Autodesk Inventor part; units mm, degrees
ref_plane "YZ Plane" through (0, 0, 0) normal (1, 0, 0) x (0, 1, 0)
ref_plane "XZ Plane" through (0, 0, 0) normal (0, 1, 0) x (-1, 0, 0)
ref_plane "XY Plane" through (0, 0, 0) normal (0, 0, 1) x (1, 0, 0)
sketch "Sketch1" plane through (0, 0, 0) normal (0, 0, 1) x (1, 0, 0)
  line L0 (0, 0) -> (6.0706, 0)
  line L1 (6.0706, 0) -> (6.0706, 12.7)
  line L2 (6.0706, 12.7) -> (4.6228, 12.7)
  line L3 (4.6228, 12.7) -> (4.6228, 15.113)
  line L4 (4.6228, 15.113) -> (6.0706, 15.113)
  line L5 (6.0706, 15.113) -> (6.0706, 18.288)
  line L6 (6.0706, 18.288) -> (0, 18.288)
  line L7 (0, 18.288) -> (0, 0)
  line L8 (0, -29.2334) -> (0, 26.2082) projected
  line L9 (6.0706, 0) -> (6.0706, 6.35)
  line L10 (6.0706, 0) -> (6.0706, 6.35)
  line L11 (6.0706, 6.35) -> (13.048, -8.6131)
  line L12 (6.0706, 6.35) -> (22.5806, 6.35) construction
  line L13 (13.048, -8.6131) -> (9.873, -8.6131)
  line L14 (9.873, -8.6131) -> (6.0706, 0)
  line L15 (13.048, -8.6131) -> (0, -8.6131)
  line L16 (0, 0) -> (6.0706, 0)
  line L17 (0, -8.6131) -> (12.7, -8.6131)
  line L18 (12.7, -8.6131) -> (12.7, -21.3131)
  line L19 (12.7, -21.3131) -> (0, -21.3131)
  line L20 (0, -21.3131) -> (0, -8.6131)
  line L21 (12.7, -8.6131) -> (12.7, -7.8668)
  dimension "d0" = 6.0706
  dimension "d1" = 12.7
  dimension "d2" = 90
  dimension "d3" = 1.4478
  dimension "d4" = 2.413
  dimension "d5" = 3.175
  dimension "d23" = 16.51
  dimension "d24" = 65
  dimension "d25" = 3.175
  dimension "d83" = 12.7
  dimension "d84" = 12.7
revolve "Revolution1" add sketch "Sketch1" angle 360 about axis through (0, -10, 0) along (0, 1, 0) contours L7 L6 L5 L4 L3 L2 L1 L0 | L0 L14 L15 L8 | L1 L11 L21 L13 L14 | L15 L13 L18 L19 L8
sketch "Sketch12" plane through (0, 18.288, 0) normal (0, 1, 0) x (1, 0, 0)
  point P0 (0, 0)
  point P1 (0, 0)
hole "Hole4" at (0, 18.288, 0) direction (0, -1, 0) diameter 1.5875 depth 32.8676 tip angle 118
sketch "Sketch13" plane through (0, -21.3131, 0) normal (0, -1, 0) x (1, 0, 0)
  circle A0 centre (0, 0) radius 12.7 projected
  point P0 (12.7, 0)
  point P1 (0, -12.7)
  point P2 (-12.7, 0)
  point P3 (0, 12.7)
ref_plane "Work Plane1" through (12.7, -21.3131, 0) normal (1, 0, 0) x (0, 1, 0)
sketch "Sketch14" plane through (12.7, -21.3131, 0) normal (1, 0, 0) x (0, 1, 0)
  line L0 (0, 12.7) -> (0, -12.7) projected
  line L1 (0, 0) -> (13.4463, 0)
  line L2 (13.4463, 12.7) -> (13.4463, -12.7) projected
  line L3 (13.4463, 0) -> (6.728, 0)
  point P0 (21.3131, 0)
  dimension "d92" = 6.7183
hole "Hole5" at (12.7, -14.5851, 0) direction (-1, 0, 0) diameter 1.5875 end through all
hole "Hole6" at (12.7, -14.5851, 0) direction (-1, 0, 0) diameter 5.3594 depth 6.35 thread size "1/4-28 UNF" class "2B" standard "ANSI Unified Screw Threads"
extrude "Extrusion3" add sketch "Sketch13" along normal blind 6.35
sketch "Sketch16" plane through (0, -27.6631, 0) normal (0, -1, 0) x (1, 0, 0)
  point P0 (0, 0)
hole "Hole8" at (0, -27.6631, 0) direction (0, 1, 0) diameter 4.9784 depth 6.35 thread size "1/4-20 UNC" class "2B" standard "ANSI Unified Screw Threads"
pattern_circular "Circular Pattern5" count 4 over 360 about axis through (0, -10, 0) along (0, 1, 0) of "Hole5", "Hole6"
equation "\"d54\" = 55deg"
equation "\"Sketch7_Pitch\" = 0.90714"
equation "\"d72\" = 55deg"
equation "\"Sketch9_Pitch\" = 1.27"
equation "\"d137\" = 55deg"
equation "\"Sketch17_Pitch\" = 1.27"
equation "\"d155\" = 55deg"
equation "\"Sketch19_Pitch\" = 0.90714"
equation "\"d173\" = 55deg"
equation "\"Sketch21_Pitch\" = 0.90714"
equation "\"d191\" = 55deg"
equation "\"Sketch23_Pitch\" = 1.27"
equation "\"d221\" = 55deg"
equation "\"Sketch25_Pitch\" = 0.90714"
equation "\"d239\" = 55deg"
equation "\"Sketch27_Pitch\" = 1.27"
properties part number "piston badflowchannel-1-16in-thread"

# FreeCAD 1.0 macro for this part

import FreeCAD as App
import Part
import Sketcher
from FreeCAD import Vector
Q = App.Units.Quantity

doc = App.newDocument("Part")
body = doc.addObject("PartDesign::Body", "Body")

# Sketch on XY plane
sketch1 = body.newObject("Sketcher::SketchObject", "Sketch")
sketch1.AttachmentSupport = (doc.getObject("XY_Plane"), [""])
sketch1.MapMode = "FlatFace"
sketch1.addGeometry([
    Part.LineSegment(Vector(0, 18.3, 0), Vector(0, -21.3, 0)),  # 0
    Part.LineSegment(Vector(0, -21.3, 0), Vector(12.7, -21.3, 0)),  # 1
    Part.LineSegment(Vector(12.7, -21.3, 0), Vector(12.7, -7.9, 0)),  # 2
    Part.LineSegment(Vector(12.7, -7.9, 0), Vector(6.1, 6.3, 0)),  # 3
    Part.LineSegment(Vector(6.1, 6.3, 0), Vector(6.1, 12.7, 0)),  # 4
    Part.LineSegment(Vector(6.1, 12.7, 0), Vector(4.6, 12.7, 0)),  # 5
    Part.LineSegment(Vector(4.6, 12.7, 0), Vector(4.6, 15.1, 0)),  # 6
    Part.LineSegment(Vector(4.6, 15.1, 0), Vector(6.1, 15.1, 0)),  # 7
    Part.LineSegment(Vector(6.1, 15.1, 0), Vector(6.1, 18.3, 0)),  # 8
    Part.LineSegment(Vector(6.1, 18.3, 0), Vector(0, 18.3, 0)),  # 9
], False)
sketch1.addConstraint([
    Sketcher.Constraint("Coincident", 0, 2, 1, 1),
    Sketcher.Constraint("Coincident", 1, 2, 2, 1),
    Sketcher.Constraint("Coincident", 2, 2, 3, 1),
    Sketcher.Constraint("Coincident", 3, 2, 4, 1),
    Sketcher.Constraint("Coincident", 4, 2, 5, 1),
    Sketcher.Constraint("Coincident", 5, 2, 6, 1),
    Sketcher.Constraint("Coincident", 6, 2, 7, 1),
    Sketcher.Constraint("Coincident", 7, 2, 8, 1),
    Sketcher.Constraint("Coincident", 8, 2, 9, 1),
    Sketcher.Constraint("Coincident", 9, 2, 0, 1),
    Sketcher.Constraint("Vertical", 0),
    Sketcher.Constraint("Horizontal", 1),
    Sketcher.Constraint("Vertical", 2),
    Sketcher.Constraint("Vertical", 4),
    Sketcher.Constraint("Horizontal", 5),
    Sketcher.Constraint("Vertical", 6),
    Sketcher.Constraint("Horizontal", 7),
    Sketcher.Constraint("Vertical", 8),
    Sketcher.Constraint("Horizontal", 9),
    Sketcher.Constraint("PointOnObject", 0, 2, -2),
    Sketcher.Constraint("Vertical", 4, 2, 7, 2),
    Sketcher.Constraint("DistanceX", 1, 1, 1, 2, Q("0.5 in")),
    Sketcher.Constraint("DistanceY", -1, 1, 4, 2, Q("0.5 in")),
    Sketcher.Constraint("DistanceX", 5, 2, 5, 1, Q("0.057 in")),
    Sketcher.Constraint("DistanceX", 9, 2, 9, 1, Q("0.239 in")),
    Sketcher.Constraint("DistanceY", 6, 1, 6, 2, Q("0.095 in")),
    Sketcher.Constraint("DistanceY", 8, 1, 8, 2, Q("0.125 in")),
    Sketcher.Constraint("Angle", 3, Q("115 deg")),
    Sketcher.Constraint("DistanceY", 4, 1, 4, 2, Q("0.25 in")),
    Sketcher.Constraint("DistanceY", 0, 2, 0, 1, Q("1.5591 in")),
])
revolution = body.newObject("PartDesign::Revolution", "Revolution")
revolution.Profile = sketch1
revolution.ReferenceAxis = (sketch1, ["V_Axis"])
revolution.Angle = 360

# Sketch on XZ plane
sketch2 = body.newObject("Sketcher::SketchObject", "Sketch001")
sketch2.AttachmentSupport = (doc.getObject("XZ_Plane"), [""])
sketch2.MapMode = "FlatFace"
sketch2.AttachmentOffset = App.Placement(Vector(0, 0, -0.72 * 25.4), App.Rotation())
sketch2.addGeometry(Part.Circle(Vector(0, 0, 0), Vector(0, 0, 1), 0.8), False)
sketch2.addConstraint([
    Sketcher.Constraint("Coincident", 0, 3, -1, 1),
    Sketcher.Constraint("Diameter", 0, Q("0.0625 in")),
])
doc.recompute()
hole = body.newObject("PartDesign::Hole", "Hole")
hole.Profile = sketch2
hole.ThreadType = "None"
hole.Diameter = Q("0.0625 in")
hole.DepthType = "Dimension"
hole.Depth = Q("1.294 in")
hole.DrillPoint = "Angled"
hole.DrillPointAngle = 118
hole.Reversed = True

# Sketch on YZ plane
sketch3 = body.newObject("Sketcher::SketchObject", "Sketch002")
sketch3.AttachmentSupport = (doc.getObject("YZ_Plane"), [""])
sketch3.MapMode = "FlatFace"
sketch3.AttachmentOffset = App.Placement(Vector(0, 0, 0.5 * 25.4), App.Rotation())
sketch3.addGeometry(Part.Circle(Vector(-14.6, 0, 0), Vector(0, 0, 1), 0.8), False)
sketch3.addConstraint([
    Sketcher.Constraint("PointOnObject", 0, 3, -1),
    Sketcher.Constraint("Diameter", 0, Q("0.0625 in")),
    Sketcher.Constraint("DistanceX", 0, 3, -1, 1, 14.585),
])
doc.recompute()
hole2 = body.newObject("PartDesign::Hole", "Hole001")
hole2.Profile = sketch3
hole2.ThreadType = "None"
hole2.Diameter = Q("0.0625 in")
hole2.DepthType = "ThroughAll"

# Sketch on YZ plane
sketch4 = body.newObject("Sketcher::SketchObject", "Sketch003")
sketch4.AttachmentSupport = (doc.getObject("YZ_Plane"), [""])
sketch4.MapMode = "FlatFace"
sketch4.AttachmentOffset = App.Placement(Vector(0, 0, 0.5 * 25.4), App.Rotation())
sketch4.addGeometry(Part.Circle(Vector(-14.6, 0, 0), Vector(0, 0, 1), 2.7), False)
sketch4.addConstraint([
    Sketcher.Constraint("PointOnObject", 0, 3, -1),
    Sketcher.Constraint("Diameter", 0, Q("0.211 in")),
    Sketcher.Constraint("DistanceX", 0, 3, -1, 1, 14.585),
])
doc.recompute()
hole3 = body.newObject("PartDesign::Hole", "Hole002")
hole3.Profile = sketch4
hole3.ThreadType = "None"
hole3.Diameter = Q("0.211 in")
hole3.DepthType = "Dimension"
hole3.Depth = Q("0.25 in")
hole3.DrillPoint = "Flat"

# Sketch on XZ plane
sketch5 = body.newObject("Sketcher::SketchObject", "Sketch004")
sketch5.AttachmentSupport = (doc.getObject("XZ_Plane"), [""])
sketch5.MapMode = "FlatFace"
sketch5.AttachmentOffset = App.Placement(Vector(0, 0, 0.8390984 * 25.4), App.Rotation())
sketch5.addGeometry(Part.Circle(Vector(0, 0, 0), Vector(0, 0, 1), 13), False)
sketch5.addConstraint([
    Sketcher.Constraint("Coincident", 0, 3, -1, 1),
    Sketcher.Constraint("Diameter", 0, Q("1 in")),
])
pad1 = body.newObject("PartDesign::Pad", "Pad")
pad1.Profile = sketch5
pad1.Length = Q("0.25 in")

# Sketch on XZ plane
sketch6 = body.newObject("Sketcher::SketchObject", "Sketch005")
sketch6.AttachmentSupport = (doc.getObject("XZ_Plane"), [""])
sketch6.MapMode = "FlatFace"
sketch6.AttachmentOffset = App.Placement(Vector(0, 0, 1.0890984 * 25.4), App.Rotation())
sketch6.addGeometry(Part.Circle(Vector(0, 0, 0), Vector(0, 0, 1), 2.5), False)
sketch6.addConstraint([
    Sketcher.Constraint("Coincident", 0, 3, -1, 1),
    Sketcher.Constraint("Diameter", 0, Q("0.196 in")),
])
doc.recompute()
hole4 = body.newObject("PartDesign::Hole", "Hole003")
hole4.Profile = sketch6
hole4.ThreadType = "None"
hole4.Diameter = Q("0.196 in")
hole4.DepthType = "Dimension"
hole4.Depth = Q("0.25 in")
hole4.DrillPoint = "Flat"
doc.recompute()

polarpattern = body.newObject("PartDesign::PolarPattern", "PolarPattern")
polarpattern.Originals = [hole2, hole3]
polarpattern.Axis = (doc.getObject("Y_Axis"), [""])
polarpattern.Angle = 360
polarpattern.Occurrences = 4
body.Tip = polarpattern

doc.recompute()
